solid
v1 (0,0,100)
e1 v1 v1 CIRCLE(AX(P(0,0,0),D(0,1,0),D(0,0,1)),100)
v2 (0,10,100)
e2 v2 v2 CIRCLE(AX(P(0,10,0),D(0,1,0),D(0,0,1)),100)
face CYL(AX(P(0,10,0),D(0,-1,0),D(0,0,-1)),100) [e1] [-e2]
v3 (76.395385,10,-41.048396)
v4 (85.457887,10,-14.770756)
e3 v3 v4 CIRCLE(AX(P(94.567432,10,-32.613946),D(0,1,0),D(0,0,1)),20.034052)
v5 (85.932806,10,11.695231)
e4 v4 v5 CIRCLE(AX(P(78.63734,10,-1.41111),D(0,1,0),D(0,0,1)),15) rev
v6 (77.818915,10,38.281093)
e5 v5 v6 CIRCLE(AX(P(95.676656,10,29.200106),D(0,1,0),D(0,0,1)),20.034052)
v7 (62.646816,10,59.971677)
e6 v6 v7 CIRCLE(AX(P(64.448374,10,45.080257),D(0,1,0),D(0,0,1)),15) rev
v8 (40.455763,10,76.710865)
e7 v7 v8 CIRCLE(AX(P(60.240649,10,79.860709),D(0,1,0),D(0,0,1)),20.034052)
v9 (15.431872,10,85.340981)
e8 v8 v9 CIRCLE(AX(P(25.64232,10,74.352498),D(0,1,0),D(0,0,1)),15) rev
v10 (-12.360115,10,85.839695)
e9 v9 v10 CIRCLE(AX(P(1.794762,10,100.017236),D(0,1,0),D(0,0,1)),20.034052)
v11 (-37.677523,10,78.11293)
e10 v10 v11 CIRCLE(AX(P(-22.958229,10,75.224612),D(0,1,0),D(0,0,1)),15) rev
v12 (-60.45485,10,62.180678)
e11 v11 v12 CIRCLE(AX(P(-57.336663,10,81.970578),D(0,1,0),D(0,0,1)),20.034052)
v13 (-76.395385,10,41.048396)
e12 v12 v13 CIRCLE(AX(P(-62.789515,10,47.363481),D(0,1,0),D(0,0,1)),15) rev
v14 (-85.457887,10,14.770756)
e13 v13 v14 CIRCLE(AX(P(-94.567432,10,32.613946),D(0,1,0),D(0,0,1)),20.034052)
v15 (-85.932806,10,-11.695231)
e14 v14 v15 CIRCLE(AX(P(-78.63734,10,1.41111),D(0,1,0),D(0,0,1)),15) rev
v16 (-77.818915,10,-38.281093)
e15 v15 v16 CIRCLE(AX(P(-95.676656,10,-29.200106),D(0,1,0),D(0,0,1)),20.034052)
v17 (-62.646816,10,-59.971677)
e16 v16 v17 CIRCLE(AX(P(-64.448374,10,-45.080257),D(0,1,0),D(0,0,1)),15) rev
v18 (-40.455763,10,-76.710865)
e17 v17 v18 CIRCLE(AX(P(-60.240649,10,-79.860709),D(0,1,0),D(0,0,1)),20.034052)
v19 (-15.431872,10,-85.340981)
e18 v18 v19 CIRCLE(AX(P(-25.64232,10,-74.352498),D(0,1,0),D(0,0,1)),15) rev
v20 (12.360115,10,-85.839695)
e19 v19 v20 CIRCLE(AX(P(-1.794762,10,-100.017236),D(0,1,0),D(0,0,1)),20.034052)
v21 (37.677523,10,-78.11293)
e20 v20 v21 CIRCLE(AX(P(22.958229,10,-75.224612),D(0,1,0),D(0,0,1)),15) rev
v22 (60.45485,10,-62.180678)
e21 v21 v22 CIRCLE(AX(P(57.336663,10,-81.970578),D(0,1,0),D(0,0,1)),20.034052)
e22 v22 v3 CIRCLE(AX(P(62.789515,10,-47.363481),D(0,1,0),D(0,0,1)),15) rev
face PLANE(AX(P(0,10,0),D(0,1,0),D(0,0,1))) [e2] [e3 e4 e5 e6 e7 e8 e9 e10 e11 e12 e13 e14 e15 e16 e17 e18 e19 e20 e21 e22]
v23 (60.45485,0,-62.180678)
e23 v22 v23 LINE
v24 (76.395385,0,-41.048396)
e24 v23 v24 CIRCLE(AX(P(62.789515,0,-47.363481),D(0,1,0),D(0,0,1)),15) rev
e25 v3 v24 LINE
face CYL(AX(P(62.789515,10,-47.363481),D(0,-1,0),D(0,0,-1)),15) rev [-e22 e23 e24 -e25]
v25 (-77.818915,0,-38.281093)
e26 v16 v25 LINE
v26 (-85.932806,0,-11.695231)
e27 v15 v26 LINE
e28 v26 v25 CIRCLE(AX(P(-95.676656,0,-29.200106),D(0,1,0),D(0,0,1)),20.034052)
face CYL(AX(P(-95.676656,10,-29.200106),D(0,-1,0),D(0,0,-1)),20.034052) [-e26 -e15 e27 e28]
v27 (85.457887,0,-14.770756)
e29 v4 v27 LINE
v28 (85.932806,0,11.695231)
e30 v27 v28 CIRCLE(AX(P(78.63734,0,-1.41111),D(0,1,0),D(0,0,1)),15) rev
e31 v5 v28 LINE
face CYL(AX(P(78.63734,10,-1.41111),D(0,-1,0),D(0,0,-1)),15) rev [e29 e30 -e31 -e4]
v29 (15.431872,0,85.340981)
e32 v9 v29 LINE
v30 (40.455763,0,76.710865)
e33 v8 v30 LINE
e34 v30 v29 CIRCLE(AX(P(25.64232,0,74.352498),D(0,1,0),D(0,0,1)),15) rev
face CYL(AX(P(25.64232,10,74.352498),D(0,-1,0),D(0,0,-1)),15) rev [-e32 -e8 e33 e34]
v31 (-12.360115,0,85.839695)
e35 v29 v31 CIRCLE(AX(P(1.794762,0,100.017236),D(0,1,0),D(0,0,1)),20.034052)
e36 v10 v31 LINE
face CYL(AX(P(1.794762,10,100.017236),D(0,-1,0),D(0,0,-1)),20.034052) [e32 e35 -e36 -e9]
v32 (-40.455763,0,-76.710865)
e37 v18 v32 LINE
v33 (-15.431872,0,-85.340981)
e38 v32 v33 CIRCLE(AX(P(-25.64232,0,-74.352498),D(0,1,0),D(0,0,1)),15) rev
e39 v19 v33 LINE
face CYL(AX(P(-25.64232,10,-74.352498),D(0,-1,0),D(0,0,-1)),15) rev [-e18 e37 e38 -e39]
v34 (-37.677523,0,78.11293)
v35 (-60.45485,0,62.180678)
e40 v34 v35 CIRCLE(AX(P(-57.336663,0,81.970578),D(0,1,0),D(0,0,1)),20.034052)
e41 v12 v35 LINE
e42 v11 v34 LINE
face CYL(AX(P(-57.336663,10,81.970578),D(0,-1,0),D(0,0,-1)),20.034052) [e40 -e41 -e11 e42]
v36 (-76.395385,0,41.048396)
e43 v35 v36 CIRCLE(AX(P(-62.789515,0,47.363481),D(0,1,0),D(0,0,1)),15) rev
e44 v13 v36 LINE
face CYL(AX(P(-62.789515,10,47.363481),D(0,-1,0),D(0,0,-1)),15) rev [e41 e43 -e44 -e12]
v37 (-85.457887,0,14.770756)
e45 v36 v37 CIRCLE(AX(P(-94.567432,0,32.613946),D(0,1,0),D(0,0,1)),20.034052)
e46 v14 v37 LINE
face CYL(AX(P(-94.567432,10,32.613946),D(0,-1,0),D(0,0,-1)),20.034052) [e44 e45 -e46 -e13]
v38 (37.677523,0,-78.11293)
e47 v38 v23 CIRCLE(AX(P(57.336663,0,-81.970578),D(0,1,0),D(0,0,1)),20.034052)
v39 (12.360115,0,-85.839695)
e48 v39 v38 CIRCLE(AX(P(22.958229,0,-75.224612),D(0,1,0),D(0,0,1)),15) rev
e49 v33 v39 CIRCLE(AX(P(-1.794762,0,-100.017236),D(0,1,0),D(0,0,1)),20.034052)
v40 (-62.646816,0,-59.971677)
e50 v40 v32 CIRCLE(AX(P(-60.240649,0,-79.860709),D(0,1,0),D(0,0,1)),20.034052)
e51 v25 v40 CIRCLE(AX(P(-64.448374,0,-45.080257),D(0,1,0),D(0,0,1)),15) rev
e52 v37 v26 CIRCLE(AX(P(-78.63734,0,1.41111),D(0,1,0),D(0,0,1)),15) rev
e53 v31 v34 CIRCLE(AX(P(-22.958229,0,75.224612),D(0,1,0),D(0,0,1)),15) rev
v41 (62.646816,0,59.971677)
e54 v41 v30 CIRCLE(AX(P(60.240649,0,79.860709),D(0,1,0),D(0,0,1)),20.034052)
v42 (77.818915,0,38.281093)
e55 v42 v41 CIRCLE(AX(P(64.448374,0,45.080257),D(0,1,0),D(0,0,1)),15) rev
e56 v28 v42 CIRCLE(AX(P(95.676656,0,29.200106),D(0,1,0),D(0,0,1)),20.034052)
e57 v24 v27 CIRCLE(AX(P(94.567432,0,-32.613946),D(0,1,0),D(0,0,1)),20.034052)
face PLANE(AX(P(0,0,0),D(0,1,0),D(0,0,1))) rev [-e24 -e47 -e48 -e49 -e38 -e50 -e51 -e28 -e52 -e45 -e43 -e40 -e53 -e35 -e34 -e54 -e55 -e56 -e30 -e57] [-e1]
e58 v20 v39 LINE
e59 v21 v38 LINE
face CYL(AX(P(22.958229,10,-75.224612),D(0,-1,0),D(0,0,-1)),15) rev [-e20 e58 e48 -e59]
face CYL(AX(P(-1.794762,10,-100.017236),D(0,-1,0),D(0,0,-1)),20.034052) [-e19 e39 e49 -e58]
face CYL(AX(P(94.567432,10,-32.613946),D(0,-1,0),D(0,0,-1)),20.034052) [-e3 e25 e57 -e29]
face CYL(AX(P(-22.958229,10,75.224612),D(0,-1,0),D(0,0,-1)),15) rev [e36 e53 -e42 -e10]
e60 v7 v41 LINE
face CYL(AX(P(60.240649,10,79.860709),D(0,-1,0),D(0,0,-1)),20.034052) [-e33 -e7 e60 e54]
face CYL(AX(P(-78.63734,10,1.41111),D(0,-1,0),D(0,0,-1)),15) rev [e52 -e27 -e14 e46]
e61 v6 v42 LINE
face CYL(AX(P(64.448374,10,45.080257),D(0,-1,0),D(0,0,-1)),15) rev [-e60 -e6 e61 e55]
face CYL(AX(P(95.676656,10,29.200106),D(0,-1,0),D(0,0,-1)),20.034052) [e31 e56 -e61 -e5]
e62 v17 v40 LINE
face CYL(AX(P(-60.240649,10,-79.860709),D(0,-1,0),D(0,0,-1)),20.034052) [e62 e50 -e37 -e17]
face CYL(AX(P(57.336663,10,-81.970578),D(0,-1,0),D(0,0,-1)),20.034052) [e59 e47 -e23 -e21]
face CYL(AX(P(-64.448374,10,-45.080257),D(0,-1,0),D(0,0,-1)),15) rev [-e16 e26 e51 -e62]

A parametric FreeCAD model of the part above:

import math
import FreeCAD as App
import Part
import Sketcher

doc = App.newDocument("Part")
body = doc.addObject("PartDesign::Body", "Body")

# Sketch on XZ plane
sketch1 = body.newObject("Sketcher::SketchObject", "Sketch")
sketch1.AttachmentSupport = (doc.getObject("XZ_Plane"), [""])
sketch1.MapMode = "FlatFace"
sketch1.addGeometry(Part.Circle(App.Vector(0, 0, 0), App.Vector(0, 0, 1), 100), False)
sketch1.addGeometry(Part.ArcOfCircle(Part.Circle(App.Vector(-60.240649, -79.860709, 0), App.Vector(0, 0, 1), 20.034052), math.radians(9.045833), math.radians(96.898097)), False)
sketch1.addGeometry(Part.ArcOfCircle(Part.Circle(App.Vector(-25.64232, -74.352498, 0), App.Vector(0, 0, 1), 15), math.radians(-170.954167), math.radians(-47.101903)), False)
sketch1.addGeometry(Part.ArcOfCircle(Part.Circle(App.Vector(-1.794762, -100.017236, 0), App.Vector(0, 0, 1), 20.034052), math.radians(45.045833), math.radians(132.898097)), False)
sketch1.addGeometry(Part.ArcOfCircle(Part.Circle(App.Vector(22.958229, -75.224612, 0), App.Vector(0, 0, 1), 15), math.radians(-134.954167), math.radians(-11.101903)), False)
sketch1.addGeometry(Part.ArcOfCircle(Part.Circle(App.Vector(57.336663, -81.970578, 0), App.Vector(0, 0, 1), 20.034052), math.radians(81.045833), math.radians(168.898097)), False)
sketch1.addGeometry(Part.ArcOfCircle(Part.Circle(App.Vector(62.789515, -47.363481, 0), App.Vector(0, 0, 1), 15), math.radians(-98.954167), math.radians(24.898097)), False)
sketch1.addGeometry(Part.ArcOfCircle(Part.Circle(App.Vector(94.567432, -32.613946, 0), App.Vector(0, 0, 1), 20.034052), math.radians(117.045833), math.radians(204.898097)), False)
sketch1.addGeometry(Part.ArcOfCircle(Part.Circle(App.Vector(78.63734, -1.41111, 0), App.Vector(0, 0, 1), 15), math.radians(-62.954167), math.radians(60.898097)), False)
sketch1.addGeometry(Part.ArcOfCircle(Part.Circle(App.Vector(95.676656, 29.200106, 0), App.Vector(0, 0, 1), 20.034052), math.radians(153.045833), math.radians(240.898097)), False)
sketch1.addGeometry(Part.ArcOfCircle(Part.Circle(App.Vector(64.448374, 45.080257, 0), App.Vector(0, 0, 1), 15), math.radians(-26.954167), math.radians(96.898097)), False)
sketch1.addGeometry(Part.ArcOfCircle(Part.Circle(App.Vector(60.240649, 79.860709, 0), App.Vector(0, 0, 1), 20.034052), math.radians(-170.954167), math.radians(-83.101903)), False)
sketch1.addGeometry(Part.ArcOfCircle(Part.Circle(App.Vector(25.64232, 74.352498, 0), App.Vector(0, 0, 1), 15), math.radians(9.045833), math.radians(132.898097)), False)
sketch1.addGeometry(Part.ArcOfCircle(Part.Circle(App.Vector(1.794762, 100.017236, 0), App.Vector(0, 0, 1), 20.034052), math.radians(-134.954167), math.radians(-47.101903)), False)
sketch1.addGeometry(Part.ArcOfCircle(Part.Circle(App.Vector(-22.958229, 75.224612, 0), App.Vector(0, 0, 1), 15), math.radians(45.045833), math.radians(168.898097)), False)
sketch1.addGeometry(Part.ArcOfCircle(Part.Circle(App.Vector(-57.336663, 81.970578, 0), App.Vector(0, 0, 1), 20.034052), math.radians(-98.954167), math.radians(-11.101903)), False)
sketch1.addGeometry(Part.ArcOfCircle(Part.Circle(App.Vector(-62.789515, 47.363481, 0), App.Vector(0, 0, 1), 15), math.radians(81.045833), math.radians(204.898097)), False)
sketch1.addGeometry(Part.ArcOfCircle(Part.Circle(App.Vector(-94.567432, 32.613946, 0), App.Vector(0, 0, 1), 20.034052), math.radians(-62.954167), math.radians(24.898097)), False)
sketch1.addGeometry(Part.ArcOfCircle(Part.Circle(App.Vector(-78.63734, 1.41111, 0), App.Vector(0, 0, 1), 15), math.radians(117.045833), math.radians(240.898097)), False)
sketch1.addGeometry(Part.ArcOfCircle(Part.Circle(App.Vector(-95.676656, -29.200106, 0), App.Vector(0, 0, 1), 20.034052), math.radians(-26.954167), math.radians(60.898097)), False)
sketch1.addGeometry(Part.ArcOfCircle(Part.Circle(App.Vector(-64.448374, -45.080257, 0), App.Vector(0, 0, 1), 15), math.radians(153.045833), math.radians(276.898097)), False)
sketch1.addConstraint(Sketcher.Constraint("Tangent", 1, 1, 2, 1))
sketch1.addConstraint(Sketcher.Constraint("Tangent", 2, 2, 3, 2))
sketch1.addConstraint(Sketcher.Constraint("Tangent", 3, 1, 4, 1))
sketch1.addConstraint(Sketcher.Constraint("Tangent", 4, 2, 5, 2))
sketch1.addConstraint(Sketcher.Constraint("Tangent", 5, 1, 6, 1))
sketch1.addConstraint(Sketcher.Constraint("Tangent", 6, 2, 7, 2))
sketch1.addConstraint(Sketcher.Constraint("Tangent", 7, 1, 8, 1))
sketch1.addConstraint(Sketcher.Constraint("Tangent", 8, 2, 9, 2))
sketch1.addConstraint(Sketcher.Constraint("Tangent", 9, 1, 10, 1))
sketch1.addConstraint(Sketcher.Constraint("Tangent", 10, 2, 11, 2))
sketch1.addConstraint(Sketcher.Constraint("Tangent", 11, 1, 12, 1))
sketch1.addConstraint(Sketcher.Constraint("Tangent", 12, 2, 13, 2))
sketch1.addConstraint(Sketcher.Constraint("Tangent", 13, 1, 14, 1))
sketch1.addConstraint(Sketcher.Constraint("Tangent", 14, 2, 15, 2))
sketch1.addConstraint(Sketcher.Constraint("Tangent", 15, 1, 16, 1))
sketch1.addConstraint(Sketcher.Constraint("Tangent", 16, 2, 17, 2))
sketch1.addConstraint(Sketcher.Constraint("Tangent", 17, 1, 18, 1))
sketch1.addConstraint(Sketcher.Constraint("Tangent", 18, 2, 19, 2))
sketch1.addConstraint(Sketcher.Constraint("Tangent", 19, 1, 20, 1))
sketch1.addConstraint(Sketcher.Constraint("Tangent", 20, 2, 1, 2))
sketch1.addConstraint(Sketcher.Constraint("Coincident", 0, 3, -1, 1))
sketch1.addConstraint(Sketcher.Constraint("Equal", 1, 3))
sketch1.addConstraint(Sketcher.Constraint("Equal", 2, 4))
sketch1.addConstraint(Sketcher.Constraint("Equal", 3, 5))
sketch1.addConstraint(Sketcher.Constraint("Equal", 4, 6))
sketch1.addConstraint(Sketcher.Constraint("Equal", 5, 7))
sketch1.addConstraint(Sketcher.Constraint("Equal", 6, 8))
sketch1.addConstraint(Sketcher.Constraint("Equal", 7, 9))
sketch1.addConstraint(Sketcher.Constraint("Equal", 8, 10))
sketch1.addConstraint(Sketcher.Constraint("Equal", 9, 11))
sketch1.addConstraint(Sketcher.Constraint("Equal", 10, 12))
sketch1.addConstraint(Sketcher.Constraint("Equal", 11, 13))
sketch1.addConstraint(Sketcher.Constraint("Equal", 12, 14))
sketch1.addConstraint(Sketcher.Constraint("Equal", 13, 15))
sketch1.addConstraint(Sketcher.Constraint("Equal", 14, 16))
sketch1.addConstraint(Sketcher.Constraint("Equal", 15, 17))
sketch1.addConstraint(Sketcher.Constraint("Equal", 16, 18))
sketch1.addConstraint(Sketcher.Constraint("Equal", 17, 19))
sketch1.addConstraint(Sketcher.Constraint("Equal", 18, 20))
sketch1.addConstraint(Sketcher.Constraint("Symmetric", 1, 3, 11, 3, -1, 1))
sketch1.addConstraint(Sketcher.Constraint("Symmetric", 3, 3, 13, 3, -1, 1))
sketch1.addConstraint(Sketcher.Constraint("Symmetric", 5, 3, 15, 3, -1, 1))
sketch1.addConstraint(Sketcher.Constraint("Symmetric", 7, 3, 17, 3, -1, 1))
sketch1.addConstraint(Sketcher.Constraint("Symmetric", 9, 3, 19, 3, -1, 1))
sketch1.addConstraint(Sketcher.Constraint("Diameter", 0, 200.0))
sketch1.addConstraint(Sketcher.Constraint("Radius", 2, 15.0))
sketch1.addConstraint(Sketcher.Constraint("Radius", 1, 20.034052))
sketch1.addConstraint(Sketcher.Constraint("DistanceX", 1, 1, 3, 3, 38.661001))
sketch1.addConstraint(Sketcher.Constraint("DistanceY", 4, 3, 8, 3, 73.813502))
sketch1.addConstraint(Sketcher.Constraint("DistanceX", 2, 2, 4, 3, 38.390101))
sketch1.addConstraint(Sketcher.Constraint("DistanceY", 5, 3, 5, 1, 19.7899))
sketch1.addConstraint(Sketcher.Constraint("DistanceX", 6, 2, 7, 1, 9.062502))
sketch1.addConstraint(Sketcher.Constraint("DistanceX", 10, 2, 9, 1, 15.172099))
sketch1.addConstraint(Sketcher.Constraint("DistanceX", 1, 3, -1, 1, 60.240649))
sketch1.addConstraint(Sketcher.Constraint("DistanceY", 1, 3, -1, 1, 79.860709))
sketch1.addConstraint(Sketcher.Constraint("DistanceX", 2, 3, -1, 1, 25.64232))
sketch1.addConstraint(Sketcher.Constraint("DistanceY", 5, 3, -1, 1, 81.970578))
pad1 = body.newObject("PartDesign::Pad", "Pad")
pad1.Profile = sketch1
pad1.Length = 10
pad1.Reversed = True

doc.recompute()
